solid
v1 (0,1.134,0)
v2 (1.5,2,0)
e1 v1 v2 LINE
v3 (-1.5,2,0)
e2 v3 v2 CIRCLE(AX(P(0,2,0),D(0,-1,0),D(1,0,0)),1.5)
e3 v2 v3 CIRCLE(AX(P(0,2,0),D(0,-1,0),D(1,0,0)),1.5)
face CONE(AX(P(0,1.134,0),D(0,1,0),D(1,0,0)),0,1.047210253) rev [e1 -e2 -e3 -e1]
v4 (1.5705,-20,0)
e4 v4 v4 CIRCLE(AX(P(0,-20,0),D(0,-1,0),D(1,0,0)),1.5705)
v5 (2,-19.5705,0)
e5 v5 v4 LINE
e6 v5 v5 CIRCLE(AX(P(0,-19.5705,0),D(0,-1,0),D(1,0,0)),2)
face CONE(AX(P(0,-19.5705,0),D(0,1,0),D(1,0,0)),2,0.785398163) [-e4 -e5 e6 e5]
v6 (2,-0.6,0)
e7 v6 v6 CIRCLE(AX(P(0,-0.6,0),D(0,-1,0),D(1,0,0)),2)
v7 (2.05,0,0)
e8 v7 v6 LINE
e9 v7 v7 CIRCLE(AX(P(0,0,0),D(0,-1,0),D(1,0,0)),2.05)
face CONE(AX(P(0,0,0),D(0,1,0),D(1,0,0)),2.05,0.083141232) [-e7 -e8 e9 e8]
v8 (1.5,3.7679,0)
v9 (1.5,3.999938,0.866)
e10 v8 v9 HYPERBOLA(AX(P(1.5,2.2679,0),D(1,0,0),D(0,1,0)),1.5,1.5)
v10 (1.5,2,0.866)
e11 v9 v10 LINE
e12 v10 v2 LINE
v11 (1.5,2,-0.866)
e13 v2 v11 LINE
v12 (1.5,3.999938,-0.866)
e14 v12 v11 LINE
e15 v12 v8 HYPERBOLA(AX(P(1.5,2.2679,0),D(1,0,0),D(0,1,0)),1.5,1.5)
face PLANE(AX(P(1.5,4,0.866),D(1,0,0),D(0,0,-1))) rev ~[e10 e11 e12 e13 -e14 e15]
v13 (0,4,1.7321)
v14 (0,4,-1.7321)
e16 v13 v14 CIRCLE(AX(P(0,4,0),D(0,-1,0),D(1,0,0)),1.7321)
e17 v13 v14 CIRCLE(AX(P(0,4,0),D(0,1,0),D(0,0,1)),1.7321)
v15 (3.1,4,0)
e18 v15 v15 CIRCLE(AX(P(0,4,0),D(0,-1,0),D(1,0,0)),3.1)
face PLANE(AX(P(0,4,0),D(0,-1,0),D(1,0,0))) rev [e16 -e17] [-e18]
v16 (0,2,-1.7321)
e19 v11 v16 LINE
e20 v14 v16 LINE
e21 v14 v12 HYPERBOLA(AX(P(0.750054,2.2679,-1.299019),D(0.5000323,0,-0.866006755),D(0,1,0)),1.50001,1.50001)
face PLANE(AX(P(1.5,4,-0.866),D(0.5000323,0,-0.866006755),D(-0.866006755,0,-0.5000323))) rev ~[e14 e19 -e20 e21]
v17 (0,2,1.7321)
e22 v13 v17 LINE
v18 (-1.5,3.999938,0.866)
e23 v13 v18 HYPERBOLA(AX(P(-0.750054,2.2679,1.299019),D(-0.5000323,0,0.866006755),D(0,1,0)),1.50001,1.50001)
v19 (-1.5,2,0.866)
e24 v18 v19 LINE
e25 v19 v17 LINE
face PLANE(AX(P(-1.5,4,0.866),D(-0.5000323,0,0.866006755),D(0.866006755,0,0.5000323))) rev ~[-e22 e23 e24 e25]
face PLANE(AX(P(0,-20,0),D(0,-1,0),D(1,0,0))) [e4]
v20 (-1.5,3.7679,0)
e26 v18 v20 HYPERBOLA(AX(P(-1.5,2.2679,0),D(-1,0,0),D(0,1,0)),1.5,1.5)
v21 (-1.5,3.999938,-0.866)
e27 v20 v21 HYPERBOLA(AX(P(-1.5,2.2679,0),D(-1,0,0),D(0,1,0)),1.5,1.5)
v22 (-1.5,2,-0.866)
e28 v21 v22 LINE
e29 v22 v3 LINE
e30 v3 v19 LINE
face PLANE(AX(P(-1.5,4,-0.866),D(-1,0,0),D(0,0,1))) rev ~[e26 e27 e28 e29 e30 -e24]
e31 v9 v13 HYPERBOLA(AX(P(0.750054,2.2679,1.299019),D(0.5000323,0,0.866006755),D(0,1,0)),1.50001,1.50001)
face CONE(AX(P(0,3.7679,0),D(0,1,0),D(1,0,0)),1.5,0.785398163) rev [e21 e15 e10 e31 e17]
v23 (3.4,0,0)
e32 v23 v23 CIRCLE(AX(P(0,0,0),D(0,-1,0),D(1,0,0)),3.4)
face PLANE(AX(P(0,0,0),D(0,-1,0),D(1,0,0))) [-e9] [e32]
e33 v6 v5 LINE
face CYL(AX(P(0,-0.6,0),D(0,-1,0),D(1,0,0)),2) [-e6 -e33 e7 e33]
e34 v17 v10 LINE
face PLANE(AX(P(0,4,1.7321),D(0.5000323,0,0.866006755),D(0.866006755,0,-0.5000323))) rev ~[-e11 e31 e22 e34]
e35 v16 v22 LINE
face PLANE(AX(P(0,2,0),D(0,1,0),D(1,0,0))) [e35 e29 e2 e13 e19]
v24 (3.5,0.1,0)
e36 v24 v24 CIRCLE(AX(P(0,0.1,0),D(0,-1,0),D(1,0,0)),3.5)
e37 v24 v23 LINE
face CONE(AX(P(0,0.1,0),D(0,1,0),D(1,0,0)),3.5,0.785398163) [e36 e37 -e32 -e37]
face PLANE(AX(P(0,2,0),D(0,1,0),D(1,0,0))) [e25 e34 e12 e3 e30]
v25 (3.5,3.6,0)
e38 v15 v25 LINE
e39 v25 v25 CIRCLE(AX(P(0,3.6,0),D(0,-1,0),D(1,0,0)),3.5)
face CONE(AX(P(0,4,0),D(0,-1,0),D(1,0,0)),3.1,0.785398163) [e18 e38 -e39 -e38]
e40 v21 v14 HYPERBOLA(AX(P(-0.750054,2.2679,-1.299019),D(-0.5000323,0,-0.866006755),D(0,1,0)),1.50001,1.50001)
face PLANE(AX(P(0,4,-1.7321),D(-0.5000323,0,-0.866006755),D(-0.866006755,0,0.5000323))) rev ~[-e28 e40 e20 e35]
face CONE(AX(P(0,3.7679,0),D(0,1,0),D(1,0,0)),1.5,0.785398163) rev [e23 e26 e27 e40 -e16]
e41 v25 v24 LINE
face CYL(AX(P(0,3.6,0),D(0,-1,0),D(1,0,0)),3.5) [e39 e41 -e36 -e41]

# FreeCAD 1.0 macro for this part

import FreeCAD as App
import Part
import Sketcher

V = App.Vector
Q = App.Units.Quantity


def add_polygon(sketch, points):
    """Adds a closed chain of lines whose ends are joined by coincident constraints."""
    first, n = sketch.GeometryCount, len(points)
    for a, b in zip(points, points[1:] + points[:1]):
        sketch.addGeometry(Part.LineSegment(App.Vector(*a, 0), App.Vector(*b, 0)), False)
    for i in range(n):
        sketch.addConstraint(Sketcher.Constraint("Coincident", first + i, 2, first + (i + 1) % n, 1))

doc = App.newDocument("Part")
params = doc.addObject("Spreadsheet::Sheet", "Params")
for row, (alias, value) in enumerate([
    ("sketch1_height", "3.5 mm"),
    ("sketch1_width", "1.35 mm"),
    ("revolution_angle", "360 deg"),
    ("pocket1_length", "2 mm"),
], start=1):
    params.set(f"A{row}", alias)
    params.set(f"B{row}", "=" + value)
    params.setAlias(f"B{row}", alias)

body = doc.addObject("PartDesign::Body", "Body")

sketch1 = body.newObject("Sketcher::SketchObject", "Sketch")
sketch1.AttachmentSupport = (doc.getObject("XY_Plane"), [""])
sketch1.MapMode = "FlatFace"
add_polygon(sketch1, [(0, 1.134), (0, -20), (1.5705, -20), (2, -19.5705), (2, -0.6), (2.05, 0), (3.4, 0), (3.5, 0.1), (3.5, 3.6), (3.1, 4), (1.7321, 4), (1.5, 3.7679), (1.5, 2)])
sketch1.addConstraint(Sketcher.Constraint("Vertical", 0))
sketch1.addConstraint(Sketcher.Constraint("Horizontal", 1))
sketch1.addConstraint(Sketcher.Constraint("Vertical", 3))
sketch1.addConstraint(Sketcher.Constraint("Horizontal", 5))
sketch1.addConstraint(Sketcher.Constraint("Vertical", 7))
sketch1.addConstraint(Sketcher.Constraint("Horizontal", 9))
sketch1.addConstraint(Sketcher.Constraint("Vertical", 11))
sketch1.addConstraint(Sketcher.Constraint("PointOnObject", 0, 2, -2))
sketch1.addConstraint(Sketcher.Constraint("PointOnObject", 4, 2, -1))
sketch1.addConstraint(Sketcher.Constraint("Parallel", 2, 6))
sketch1.addConstraint(Sketcher.Constraint("Perpendicular", 6, 8))
sketch1.addConstraint(Sketcher.Constraint("Perpendicular", 8, 10))
sketch1.addConstraint(Sketcher.Constraint("Angle", 2, Q("45 deg")))
sketch1.addConstraint(Sketcher.Constraint("Angle", 12, Q("-150.0007 deg")))
sketch1.addConstraint(Sketcher.Constraint("DistanceY", 7, 1, 7, 2, 3.5))
sketch1.addConstraint(Sketcher.Constraint("DistanceY", 0, 2, -1, 1, 20.0))
sketch1.addConstraint(Sketcher.Constraint("DistanceX", -1, 1, 2, 2, 2.0))
sketch1.addConstraint(Sketcher.Constraint("DistanceY", -1, 1, 8, 2, 4.0))
sketch1.addConstraint(Sketcher.Constraint("DistanceY", -1, 1, 11, 2, 2.0))
sketch1.addConstraint(Sketcher.Constraint("DistanceX", 10, 2, 7, 2, 2.0))
sketch1.addConstraint(Sketcher.Constraint("DistanceX", 5, 1, 5, 2, 1.35))
sketch1.addConstraint(Sketcher.Constraint("DistanceY", 3, 2, -1, 1, 0.6))
sketch1.addConstraint(Sketcher.Constraint("DistanceX", -1, 1, 5, 2, 3.4))
sketch1.addConstraint(Sketcher.Constraint("DistanceX", -1, 1, 6, 2, 3.5))
sketch1.addConstraint(Sketcher.Constraint("DistanceX", 9, 2, 9, 1, 1.368))
sketch1.addConstraint(Sketcher.Constraint("DistanceX", 1, 1, 1, 2, 1.5705))
sketch1.setExpression("Constraints[27]", "Params.sketch1_height")
sketch1.setExpression("Constraints[33]", "Params.sketch1_width")
revolution = body.newObject("PartDesign::Revolution", "Revolution")
revolution.Profile = sketch1
revolution.ReferenceAxis = (sketch1, ["V_Axis"])
revolution.setExpression("Angle", "Params.revolution_angle")

sketch2 = body.newObject("Sketcher::SketchObject", "Sketch001")
sketch2.AttachmentSupport = (doc.getObject("XZ_Plane"), [""])
sketch2.MapMode = "FlatFace"
sketch2.AttachmentOffset = App.Placement(V(0, 0, -4), App.Rotation())
add_polygon(sketch2, [(-1.5, -0.866), (-1.5, 0.866), (0, 1.7321), (1.5, 0.866), (1.5, -0.866), (0, -1.7321)])
sketch2.addConstraint(Sketcher.Constraint("Vertical", 0))
sketch2.addConstraint(Sketcher.Constraint("Vertical", 3))
sketch2.addConstraint(Sketcher.Constraint("Symmetric", 0, 2, 3, 2, -1, 1))
sketch2.addConstraint(Sketcher.Constraint("Symmetric", 1, 2, 4, 2, -1, 1))
sketch2.addConstraint(Sketcher.Constraint("PointOnObject", 1, 2, -2))
sketch2.addConstraint(Sketcher.Constraint("Parallel", 2, 5))
sketch2.addConstraint(Sketcher.Constraint("Horizontal", 0, 2, 2, 2))
sketch2.addConstraint(Sketcher.Constraint("DistanceX", 0, 2, 2, 2, 3.0))
sketch2.addConstraint(Sketcher.Constraint("DistanceY", 0, 1, 0, 2, 1.732))
sketch2.addConstraint(Sketcher.Constraint("Distance", 1, 1.732))
pocket1 = body.newObject("PartDesign::Pocket", "Pocket")
pocket1.Profile = sketch2
pocket1.setExpression("Length", "Params.pocket1_length")
pocket1.Reversed = True

doc.recompute()
